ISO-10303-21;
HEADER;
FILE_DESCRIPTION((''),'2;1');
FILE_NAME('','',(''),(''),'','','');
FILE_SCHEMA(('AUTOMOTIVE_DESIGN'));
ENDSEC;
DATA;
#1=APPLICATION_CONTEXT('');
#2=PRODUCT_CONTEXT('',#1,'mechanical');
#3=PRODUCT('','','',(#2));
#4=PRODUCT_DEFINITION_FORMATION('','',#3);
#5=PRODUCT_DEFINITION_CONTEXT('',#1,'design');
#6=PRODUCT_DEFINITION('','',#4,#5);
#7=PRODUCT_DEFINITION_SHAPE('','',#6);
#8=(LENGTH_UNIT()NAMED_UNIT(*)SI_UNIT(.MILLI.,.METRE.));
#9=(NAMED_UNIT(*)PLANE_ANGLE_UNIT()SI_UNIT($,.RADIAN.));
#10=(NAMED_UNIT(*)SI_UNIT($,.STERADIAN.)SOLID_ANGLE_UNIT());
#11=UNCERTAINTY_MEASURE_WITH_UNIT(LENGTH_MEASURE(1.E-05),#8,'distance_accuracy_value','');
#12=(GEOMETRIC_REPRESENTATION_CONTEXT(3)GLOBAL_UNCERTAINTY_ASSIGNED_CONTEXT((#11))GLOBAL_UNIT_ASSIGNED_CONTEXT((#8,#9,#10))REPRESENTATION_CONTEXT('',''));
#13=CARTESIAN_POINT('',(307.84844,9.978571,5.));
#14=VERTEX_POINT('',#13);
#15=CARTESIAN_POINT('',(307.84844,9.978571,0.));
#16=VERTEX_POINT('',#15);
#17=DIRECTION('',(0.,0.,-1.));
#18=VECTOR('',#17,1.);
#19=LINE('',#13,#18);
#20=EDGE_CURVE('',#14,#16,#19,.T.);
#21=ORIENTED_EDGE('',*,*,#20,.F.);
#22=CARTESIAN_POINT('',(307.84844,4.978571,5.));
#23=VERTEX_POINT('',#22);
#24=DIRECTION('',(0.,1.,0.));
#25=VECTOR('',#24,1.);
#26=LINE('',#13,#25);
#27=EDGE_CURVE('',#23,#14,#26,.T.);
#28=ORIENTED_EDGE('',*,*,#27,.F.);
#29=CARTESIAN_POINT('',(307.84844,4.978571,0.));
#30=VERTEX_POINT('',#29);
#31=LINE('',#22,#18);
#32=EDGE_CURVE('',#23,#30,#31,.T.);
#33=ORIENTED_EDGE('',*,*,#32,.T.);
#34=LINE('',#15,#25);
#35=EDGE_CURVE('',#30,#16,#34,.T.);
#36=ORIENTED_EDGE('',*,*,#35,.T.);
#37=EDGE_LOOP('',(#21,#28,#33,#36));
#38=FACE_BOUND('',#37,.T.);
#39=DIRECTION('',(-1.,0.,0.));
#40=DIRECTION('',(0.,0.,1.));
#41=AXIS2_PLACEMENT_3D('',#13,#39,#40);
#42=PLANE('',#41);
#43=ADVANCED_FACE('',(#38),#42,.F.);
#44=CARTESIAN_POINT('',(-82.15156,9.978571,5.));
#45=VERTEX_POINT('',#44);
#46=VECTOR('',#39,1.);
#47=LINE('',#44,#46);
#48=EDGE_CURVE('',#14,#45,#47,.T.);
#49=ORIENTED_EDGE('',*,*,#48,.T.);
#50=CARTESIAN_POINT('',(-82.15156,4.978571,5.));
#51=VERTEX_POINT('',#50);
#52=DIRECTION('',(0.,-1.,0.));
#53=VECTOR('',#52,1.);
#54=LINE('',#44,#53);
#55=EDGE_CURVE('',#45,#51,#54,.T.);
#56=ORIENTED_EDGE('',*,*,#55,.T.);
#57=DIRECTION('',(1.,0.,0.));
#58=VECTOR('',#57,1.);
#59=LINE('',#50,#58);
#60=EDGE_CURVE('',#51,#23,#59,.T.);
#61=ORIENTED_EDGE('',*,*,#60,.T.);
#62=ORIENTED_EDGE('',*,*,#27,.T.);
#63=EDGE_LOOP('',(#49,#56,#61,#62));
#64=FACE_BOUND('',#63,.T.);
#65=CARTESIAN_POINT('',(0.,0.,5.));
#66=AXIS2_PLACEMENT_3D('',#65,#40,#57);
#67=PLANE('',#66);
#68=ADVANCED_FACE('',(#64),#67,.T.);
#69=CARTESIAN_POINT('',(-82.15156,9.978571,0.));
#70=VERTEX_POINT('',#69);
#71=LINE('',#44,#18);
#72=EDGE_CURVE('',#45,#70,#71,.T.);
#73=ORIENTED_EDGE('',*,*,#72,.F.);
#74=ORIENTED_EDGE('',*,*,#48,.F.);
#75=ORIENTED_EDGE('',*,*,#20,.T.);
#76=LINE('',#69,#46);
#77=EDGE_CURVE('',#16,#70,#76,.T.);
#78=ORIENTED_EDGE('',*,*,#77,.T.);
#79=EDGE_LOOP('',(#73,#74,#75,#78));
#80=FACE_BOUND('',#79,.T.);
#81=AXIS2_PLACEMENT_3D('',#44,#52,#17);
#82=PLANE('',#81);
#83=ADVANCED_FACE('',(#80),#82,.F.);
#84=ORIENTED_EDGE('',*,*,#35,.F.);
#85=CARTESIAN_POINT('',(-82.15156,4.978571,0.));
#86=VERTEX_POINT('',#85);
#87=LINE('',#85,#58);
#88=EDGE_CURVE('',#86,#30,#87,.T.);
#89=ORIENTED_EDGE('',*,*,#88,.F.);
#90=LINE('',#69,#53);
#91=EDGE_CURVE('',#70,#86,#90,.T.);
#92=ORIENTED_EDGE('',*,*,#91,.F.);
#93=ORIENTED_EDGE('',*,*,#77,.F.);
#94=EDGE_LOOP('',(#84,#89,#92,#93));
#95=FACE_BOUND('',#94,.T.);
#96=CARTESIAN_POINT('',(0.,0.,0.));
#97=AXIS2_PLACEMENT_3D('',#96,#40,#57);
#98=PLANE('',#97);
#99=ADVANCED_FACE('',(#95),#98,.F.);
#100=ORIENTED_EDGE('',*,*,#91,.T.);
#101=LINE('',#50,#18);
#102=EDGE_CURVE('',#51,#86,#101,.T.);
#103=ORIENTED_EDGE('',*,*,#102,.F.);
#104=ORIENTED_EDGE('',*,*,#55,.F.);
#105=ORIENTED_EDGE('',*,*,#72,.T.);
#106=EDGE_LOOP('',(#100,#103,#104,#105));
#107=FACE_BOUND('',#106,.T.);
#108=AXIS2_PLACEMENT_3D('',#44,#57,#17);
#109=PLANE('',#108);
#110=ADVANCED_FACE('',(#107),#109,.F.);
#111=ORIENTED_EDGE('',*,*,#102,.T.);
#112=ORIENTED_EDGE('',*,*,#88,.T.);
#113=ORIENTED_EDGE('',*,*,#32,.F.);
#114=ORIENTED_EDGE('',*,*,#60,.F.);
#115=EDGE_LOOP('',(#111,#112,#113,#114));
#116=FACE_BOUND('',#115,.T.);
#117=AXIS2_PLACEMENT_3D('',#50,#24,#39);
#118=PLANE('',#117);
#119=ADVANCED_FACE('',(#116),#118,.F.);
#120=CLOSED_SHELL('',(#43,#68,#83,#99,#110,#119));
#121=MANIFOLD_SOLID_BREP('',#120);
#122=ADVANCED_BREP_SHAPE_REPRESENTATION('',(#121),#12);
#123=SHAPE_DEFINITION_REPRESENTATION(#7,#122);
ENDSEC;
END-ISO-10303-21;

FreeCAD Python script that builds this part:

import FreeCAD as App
import Part
import Sketcher


def add_polygon(sketch, points):
    """Adds a closed chain of lines whose ends are joined by coincident constraints."""
    first, n = sketch.GeometryCount, len(points)
    for a, b in zip(points, points[1:] + points[:1]):
        sketch.addGeometry(Part.LineSegment(App.Vector(*a, 0), App.Vector(*b, 0)), False)
    for i in range(n):
        sketch.addConstraint(Sketcher.Constraint("Coincident", first + i, 2, first + (i + 1) % n, 1))

doc = App.newDocument("Part")
body = doc.addObject("PartDesign::Body", "Body")

# Sketch on XY plane
sketch1 = body.newObject("Sketcher::SketchObject", "Sketch")
sketch1.AttachmentSupport = (doc.getObject("XY_Plane"), [""])
sketch1.MapMode = "FlatFace"
add_polygon(sketch1, [(-82.15156, 9.978571), (-82.15156, 4.978571), (307.84844, 4.978571), (307.84844, 9.978571)])  # lines 0-3
sketch1.addConstraint(Sketcher.Constraint("Vertical", 0))
sketch1.addConstraint(Sketcher.Constraint("Horizontal", 1))
sketch1.addConstraint(Sketcher.Constraint("Vertical", 2))
sketch1.addConstraint(Sketcher.Constraint("Horizontal", 3))
sketch1.addConstraint(Sketcher.Constraint("DistanceX", 1, 1, 1, 2, 390.0))
sketch1.addConstraint(Sketcher.Constraint("DistanceY", 0, 2, 0, 1, 5.0))
sketch1.addConstraint(Sketcher.Constraint("DistanceX", 0, 2, -1, 1, 82.15156))
sketch1.addConstraint(Sketcher.Constraint("DistanceY", -1, 1, 0, 2, 4.978571))
pad1 = body.newObject("PartDesign::Pad", "Pad")
pad1.Profile = sketch1
pad1.Length = 5

doc.recompute()
